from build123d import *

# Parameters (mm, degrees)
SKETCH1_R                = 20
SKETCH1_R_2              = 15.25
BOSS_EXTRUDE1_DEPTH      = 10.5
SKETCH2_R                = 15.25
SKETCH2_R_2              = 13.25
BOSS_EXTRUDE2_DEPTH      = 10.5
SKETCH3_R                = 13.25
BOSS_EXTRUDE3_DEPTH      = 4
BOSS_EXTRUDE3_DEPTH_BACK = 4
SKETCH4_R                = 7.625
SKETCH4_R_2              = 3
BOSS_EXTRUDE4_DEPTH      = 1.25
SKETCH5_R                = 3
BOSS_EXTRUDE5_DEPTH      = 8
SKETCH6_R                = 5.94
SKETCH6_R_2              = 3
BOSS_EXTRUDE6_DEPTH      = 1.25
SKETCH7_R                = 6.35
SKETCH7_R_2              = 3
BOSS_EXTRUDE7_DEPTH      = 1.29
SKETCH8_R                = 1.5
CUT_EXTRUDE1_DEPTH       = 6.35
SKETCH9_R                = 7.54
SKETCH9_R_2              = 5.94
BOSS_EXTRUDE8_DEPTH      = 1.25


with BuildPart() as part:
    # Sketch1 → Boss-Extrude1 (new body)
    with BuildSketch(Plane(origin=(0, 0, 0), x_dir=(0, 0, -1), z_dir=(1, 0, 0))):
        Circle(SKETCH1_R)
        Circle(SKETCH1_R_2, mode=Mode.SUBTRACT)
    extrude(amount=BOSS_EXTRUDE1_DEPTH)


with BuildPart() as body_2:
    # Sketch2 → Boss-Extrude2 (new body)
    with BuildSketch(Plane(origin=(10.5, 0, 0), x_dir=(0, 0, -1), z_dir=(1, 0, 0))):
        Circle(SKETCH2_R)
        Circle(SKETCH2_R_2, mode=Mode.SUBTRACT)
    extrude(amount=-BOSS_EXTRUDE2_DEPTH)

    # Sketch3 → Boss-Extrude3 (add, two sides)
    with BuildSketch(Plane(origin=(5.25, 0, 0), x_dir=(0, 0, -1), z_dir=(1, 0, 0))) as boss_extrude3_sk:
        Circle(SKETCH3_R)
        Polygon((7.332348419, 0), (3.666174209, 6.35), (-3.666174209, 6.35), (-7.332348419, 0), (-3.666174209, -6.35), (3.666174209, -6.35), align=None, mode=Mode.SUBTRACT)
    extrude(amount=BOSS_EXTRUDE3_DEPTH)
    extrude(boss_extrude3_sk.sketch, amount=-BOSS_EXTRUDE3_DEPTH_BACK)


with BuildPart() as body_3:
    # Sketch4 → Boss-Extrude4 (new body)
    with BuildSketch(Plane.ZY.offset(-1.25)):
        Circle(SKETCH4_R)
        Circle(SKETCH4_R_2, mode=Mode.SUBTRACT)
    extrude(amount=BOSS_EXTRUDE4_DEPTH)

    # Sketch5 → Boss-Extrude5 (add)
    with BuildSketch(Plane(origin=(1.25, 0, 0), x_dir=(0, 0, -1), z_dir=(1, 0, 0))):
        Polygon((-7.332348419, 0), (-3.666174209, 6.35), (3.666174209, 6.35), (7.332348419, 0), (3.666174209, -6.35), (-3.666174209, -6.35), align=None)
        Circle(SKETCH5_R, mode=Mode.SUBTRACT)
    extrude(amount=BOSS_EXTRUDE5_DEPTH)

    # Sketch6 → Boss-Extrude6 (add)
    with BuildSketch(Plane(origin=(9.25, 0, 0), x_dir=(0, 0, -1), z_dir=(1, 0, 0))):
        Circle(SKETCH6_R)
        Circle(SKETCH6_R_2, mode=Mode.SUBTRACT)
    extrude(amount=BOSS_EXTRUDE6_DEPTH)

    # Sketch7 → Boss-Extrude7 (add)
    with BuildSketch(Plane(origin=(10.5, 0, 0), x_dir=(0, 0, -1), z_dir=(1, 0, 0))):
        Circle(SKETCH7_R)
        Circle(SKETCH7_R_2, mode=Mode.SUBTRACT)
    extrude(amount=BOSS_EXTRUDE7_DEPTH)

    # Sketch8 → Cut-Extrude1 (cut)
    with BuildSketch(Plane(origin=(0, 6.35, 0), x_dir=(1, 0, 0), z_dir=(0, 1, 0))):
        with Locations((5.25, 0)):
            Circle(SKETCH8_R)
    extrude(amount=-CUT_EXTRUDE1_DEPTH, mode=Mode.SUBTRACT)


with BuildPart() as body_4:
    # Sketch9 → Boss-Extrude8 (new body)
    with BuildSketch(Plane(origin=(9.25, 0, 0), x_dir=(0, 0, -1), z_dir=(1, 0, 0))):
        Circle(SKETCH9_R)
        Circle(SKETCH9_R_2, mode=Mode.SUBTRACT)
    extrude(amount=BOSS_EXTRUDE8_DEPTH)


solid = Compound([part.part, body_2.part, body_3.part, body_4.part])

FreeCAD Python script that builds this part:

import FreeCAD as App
import Part
import Sketcher
Q = App.Units.Quantity

doc = App.newDocument("Part")
params = doc.addObject("Spreadsheet::Sheet", "Params")
for row, (alias, value) in enumerate([
    ("sketch1_diameter", "40 mm"),
    ("sketch1_diameter2", "30.5 mm"),
    ("pad1_length", "10.5 mm"),
    ("sketch2_diameter", "30.5 mm"),
    ("sketch2_diameter2", "26.5 mm"),
    ("pad2_length", "10.5 mm"),
    ("sketch3_diameter", "26.5 mm"),
    ("pad3_length", "4 mm"),
    ("pad3_length2", "4 mm"),
    ("sketch4_diameter", "6 mm"),
    ("sketch4_diameter2", "15.25 mm"),
    ("pad4_length", "1.25 mm"),
    ("sketch5_diameter", "6 mm"),
    ("pad5_length", "8 mm"),
    ("sketch6_diameter", "6 mm"),
    ("sketch6_diameter2", "11.88 mm"),
    ("pad6_length", "1.25 mm"),
    ("sketch7_diameter", "6 mm"),
    ("sketch7_diameter2", "12.7 mm"),
    ("pad7_length", "1.29 mm"),
    ("sketch8_diameter", "3 mm"),
    ("pocket1_length", "6.35 mm"),
    ("sketch9_diameter", "15.08 mm"),
    ("sketch9_diameter2", "11.88 mm"),
    ("pad8_length", "1.25 mm"),
], start=1):
    params.set(f"A{row}", alias)
    params.set(f"B{row}", "=" + value)
    params.setAlias(f"B{row}", alias)

body = doc.addObject("PartDesign::Body", "Body")

# Sketch on YZ plane
sketch1 = doc.addObject("Sketcher::SketchObject", "Sketch")
body.addObject(sketch1)
sketch1.AttachmentSupport = (doc.YZ_Plane, [""])
sketch1.MapMode = "FlatFace"
sketch1.addGeometry(Part.Circle(App.Vector(0, 0, 0), App.Vector(0, 0, 1), 20), False)
sketch1.addGeometry(Part.Circle(App.Vector(0, 0, 0), App.Vector(0, 0, 1), 15.25), False)
sketch1.addConstraint(Sketcher.Constraint("Coincident", 0, 3, -1, 1))
sketch1.addConstraint(Sketcher.Constraint("Coincident", 1, 3, -1, 1))
sketch1.addConstraint(Sketcher.Constraint("Diameter", 0, 40.0))
sketch1.addConstraint(Sketcher.Constraint("Diameter", 1, 30.5))
sketch1.setExpression("Constraints[2]", "Params.sketch1_diameter")
sketch1.setExpression("Constraints[3]", "Params.sketch1_diameter2")
pad1 = doc.addObject("PartDesign::Pad", "Pad")
body.addObject(pad1)
pad1.Profile = sketch1
pad1.setExpression("Length", "Params.pad1_length")
body2 = doc.addObject("PartDesign::Body", "Body001")

# Sketch on YZ plane
sketch2 = doc.addObject("Sketcher::SketchObject", "Sketch001")
body2.addObject(sketch2)
sketch2.AttachmentSupport = (doc.getObject("YZ_Plane001"), [""])
sketch2.MapMode = "FlatFace"
sketch2.AttachmentOffset = App.Placement(App.Vector(0, 0, 10.5), App.Rotation())
sketch2.addGeometry(Part.Circle(App.Vector(0, 0, 0), App.Vector(0, 0, 1), 15.25), False)
sketch2.addGeometry(Part.Circle(App.Vector(0, 0, 0), App.Vector(0, 0, 1), 13.25), False)
sketch2.addConstraint(Sketcher.Constraint("Coincident", 0, 3, -1, 1))
sketch2.addConstraint(Sketcher.Constraint("Coincident", 1, 3, -1, 1))
sketch2.addConstraint(Sketcher.Constraint("Diameter", 0, 30.5))
sketch2.addConstraint(Sketcher.Constraint("Diameter", 1, 26.5))
sketch2.setExpression("Constraints[2]", "Params.sketch2_diameter")
sketch2.setExpression("Constraints[3]", "Params.sketch2_diameter2")
pad2 = doc.addObject("PartDesign::Pad", "Pad001")
body2.addObject(pad2)
pad2.Profile = sketch2
pad2.setExpression("Length", "Params.pad2_length")
pad2.Reversed = True

# Sketch on YZ plane
sketch3 = doc.addObject("Sketcher::SketchObject", "Sketch002")
body2.addObject(sketch3)
sketch3.AttachmentSupport = (doc.getObject("YZ_Plane001"), [""])
sketch3.MapMode = "FlatFace"
sketch3.AttachmentOffset = App.Placement(App.Vector(0, 0, 5.25), App.Rotation())
sketch3.addGeometry(Part.Circle(App.Vector(0, 0, 0), App.Vector(0, 0, 1), 13.25), False)
sketch3.addGeometry(Part.LineSegment(App.Vector(6.35, -3.666174, 0), App.Vector(0, -7.332348, 0)), False)
sketch3.addGeometry(Part.LineSegment(App.Vector(0, -7.332348, 0), App.Vector(-6.35, -3.666174, 0)), False)
sketch3.addGeometry(Part.LineSegment(App.Vector(-6.35, -3.666174, 0), App.Vector(-6.35, 3.666174, 0)), False)
sketch3.addGeometry(Part.LineSegment(App.Vector(-6.35, 3.666174, 0), App.Vector(0, 7.332348, 0)), False)
sketch3.addGeometry(Part.LineSegment(App.Vector(0, 7.332348, 0), App.Vector(6.35, 3.666174, 0)), False)
sketch3.addGeometry(Part.LineSegment(App.Vector(6.35, 3.666174, 0), App.Vector(6.35, -3.666174, 0)), False)
sketch3.addConstraint(Sketcher.Constraint("Coincident", 1, 2, 2, 1))
sketch3.addConstraint(Sketcher.Constraint("Coincident", 2, 2, 3, 1))
sketch3.addConstraint(Sketcher.Constraint("Coincident", 3, 2, 4, 1))
sketch3.addConstraint(Sketcher.Constraint("Coincident", 4, 2, 5, 1))
sketch3.addConstraint(Sketcher.Constraint("Coincident", 5, 2, 6, 1))
sketch3.addConstraint(Sketcher.Constraint("Coincident", 6, 2, 1, 1))
sketch3.addConstraint(Sketcher.Constraint("Vertical", 3))
sketch3.addConstraint(Sketcher.Constraint("Vertical", 6))
sketch3.addConstraint(Sketcher.Constraint("Coincident", 0, 3, -1, 1))
sketch3.addConstraint(Sketcher.Constraint("Symmetric", 1, 2, 4, 2, -1, 1))
sketch3.addConstraint(Sketcher.Constraint("Symmetric", 2, 2, 5, 2, -1, 1))
sketch3.addConstraint(Sketcher.Constraint("PointOnObject", 1, 2, -2))
sketch3.addConstraint(Sketcher.Constraint("Parallel", 1, 4))
sketch3.addConstraint(Sketcher.Constraint("Horizontal", 3, 2, 5, 2))
sketch3.addConstraint(Sketcher.Constraint("Diameter", 0, 26.5))
sketch3.addConstraint(Sketcher.Constraint("Angle", 1, Q("-150 deg")))
sketch3.addConstraint(Sketcher.Constraint("DistanceX", 3, 2, 5, 2, 12.7))
sketch3.addConstraint(Sketcher.Constraint("DistanceY", 3, 1, 3, 2, 7.332348))
sketch3.setExpression("Constraints[14]", "Params.sketch3_diameter")
pad3 = doc.addObject("PartDesign::Pad", "Pad002")
body2.addObject(pad3)
pad3.Profile = sketch3
pad3.Type = "TwoLengths"
pad3.setExpression("Length", "Params.pad3_length")
pad3.setExpression("Length2", "Params.pad3_length2")
body3 = doc.addObject("PartDesign::Body", "Body002")

# Sketch on YZ plane
sketch4 = doc.addObject("Sketcher::SketchObject", "Sketch003")
body3.addObject(sketch4)
sketch4.AttachmentSupport = (doc.getObject("YZ_Plane002"), [""])
sketch4.MapMode = "FlatFace"
sketch4.AttachmentOffset = App.Placement(App.Vector(0, 0, 1.25), App.Rotation())
sketch4.addGeometry(Part.Circle(App.Vector(0, 0, 0), App.Vector(0, 0, 1), 7.625), False)
sketch4.addGeometry(Part.Circle(App.Vector(0, 0, 0), App.Vector(0, 0, 1), 3), False)
sketch4.addConstraint(Sketcher.Constraint("Coincident", 0, 3, -1, 1))
sketch4.addConstraint(Sketcher.Constraint("Coincident", 1, 3, -1, 1))
sketch4.addConstraint(Sketcher.Constraint("Diameter", 1, 6.0))
sketch4.addConstraint(Sketcher.Constraint("Diameter", 0, 15.25))
sketch4.setExpression("Constraints[2]", "Params.sketch4_diameter")
sketch4.setExpression("Constraints[3]", "Params.sketch4_diameter2")
pad4 = doc.addObject("PartDesign::Pad", "Pad003")
body3.addObject(pad4)
pad4.Profile = sketch4
pad4.setExpression("Length", "Params.pad4_length")
pad4.Reversed = True

# Sketch on YZ plane
sketch5 = doc.addObject("Sketcher::SketchObject", "Sketch004")
body3.addObject(sketch5)
sketch5.AttachmentSupport = (doc.getObject("YZ_Plane002"), [""])
sketch5.MapMode = "FlatFace"
sketch5.AttachmentOffset = App.Placement(App.Vector(0, 0, 1.25), App.Rotation())
sketch5.addGeometry(Part.LineSegment(App.Vector(6.35, 3.666174, 0), App.Vector(0, 7.332348, 0)), False)
sketch5.addGeometry(Part.LineSegment(App.Vector(0, 7.332348, 0), App.Vector(-6.35, 3.666174, 0)), False)
sketch5.addGeometry(Part.LineSegment(App.Vector(-6.35, 3.666174, 0), App.Vector(-6.35, -3.666174, 0)), False)
sketch5.addGeometry(Part.LineSegment(App.Vector(-6.35, -3.666174, 0), App.Vector(0, -7.332348, 0)), False)
sketch5.addGeometry(Part.LineSegment(App.Vector(0, -7.332348, 0), App.Vector(6.35, -3.666174, 0)), False)
sketch5.addGeometry(Part.LineSegment(App.Vector(6.35, -3.666174, 0), App.Vector(6.35, 3.666174, 0)), False)
sketch5.addGeometry(Part.Circle(App.Vector(0, 0, 0), App.Vector(0, 0, 1), 3), False)
sketch5.addConstraint(Sketcher.Constraint("Coincident", 0, 2, 1, 1))
sketch5.addConstraint(Sketcher.Constraint("Coincident", 1, 2, 2, 1))
sketch5.addConstraint(Sketcher.Constraint("Coincident", 2, 2, 3, 1))
sketch5.addConstraint(Sketcher.Constraint("Coincident", 3, 2, 4, 1))
sketch5.addConstraint(Sketcher.Constraint("Coincident", 4, 2, 5, 1))
sketch5.addConstraint(Sketcher.Constraint("Coincident", 5, 2, 0, 1))
sketch5.addConstraint(Sketcher.Constraint("Vertical", 2))
sketch5.addConstraint(Sketcher.Constraint("Vertical", 5))
sketch5.addConstraint(Sketcher.Constraint("Coincident", 6, 3, -1, 1))
sketch5.addConstraint(Sketcher.Constraint("Symmetric", 0, 2, 3, 2, -1, 1))
sketch5.addConstraint(Sketcher.Constraint("Symmetric", 1, 2, 4, 2, -1, 1))
sketch5.addConstraint(Sketcher.Constraint("PointOnObject", 0, 2, -2))
sketch5.addConstraint(Sketcher.Constraint("Parallel", 0, 3))
sketch5.addConstraint(Sketcher.Constraint("Horizontal", 2, 2, 4, 2))
sketch5.addConstraint(Sketcher.Constraint("Diameter", 6, 6.0))
sketch5.addConstraint(Sketcher.Constraint("Angle", 0, Q("150 deg")))
sketch5.addConstraint(Sketcher.Constraint("DistanceX", 2, 2, 4, 2, 12.7))
sketch5.addConstraint(Sketcher.Constraint("DistanceY", 2, 2, 2, 1, 7.332348))
sketch5.setExpression("Constraints[14]", "Params.sketch5_diameter")
pad5 = doc.addObject("PartDesign::Pad", "Pad004")
body3.addObject(pad5)
pad5.Profile = sketch5
pad5.setExpression("Length", "Params.pad5_length")

# Sketch on YZ plane
sketch6 = doc.addObject("Sketcher::SketchObject", "Sketch005")
body3.addObject(sketch6)
sketch6.AttachmentSupport = (doc.getObject("YZ_Plane002"), [""])
sketch6.MapMode = "FlatFace"
sketch6.AttachmentOffset = App.Placement(App.Vector(0, 0, 9.25), App.Rotation())
sketch6.addGeometry(Part.Circle(App.Vector(0, 0, 0), App.Vector(0, 0, 1), 5.94), False)
sketch6.addGeometry(Part.Circle(App.Vector(0, 0, 0), App.Vector(0, 0, 1), 3), False)
sketch6.addConstraint(Sketcher.Constraint("Coincident", 0, 3, -1, 1))
sketch6.addConstraint(Sketcher.Constraint("Coincident", 1, 3, -1, 1))
sketch6.addConstraint(Sketcher.Constraint("Diameter", 1, 6.0))
sketch6.addConstraint(Sketcher.Constraint("Diameter", 0, 11.88))
sketch6.setExpression("Constraints[2]", "Params.sketch6_diameter")
sketch6.setExpression("Constraints[3]", "Params.sketch6_diameter2")
pad6 = doc.addObject("PartDesign::Pad", "Pad005")
body3.addObject(pad6)
pad6.Profile = sketch6
pad6.setExpression("Length", "Params.pad6_length")

# Sketch on YZ plane
sketch7 = doc.addObject("Sketcher::SketchObject", "Sketch006")
body3.addObject(sketch7)
sketch7.AttachmentSupport = (doc.getObject("YZ_Plane002"), [""])
sketch7.MapMode = "FlatFace"
sketch7.AttachmentOffset = App.Placement(App.Vector(0, 0, 10.5), App.Rotation())
sketch7.addGeometry(Part.Circle(App.Vector(0, 0, 0), App.Vector(0, 0, 1), 6.35), False)
sketch7.addGeometry(Part.Circle(App.Vector(0, 0, 0), App.Vector(0, 0, 1), 3), False)
sketch7.addConstraint(Sketcher.Constraint("Coincident", 0, 3, -1, 1))
sketch7.addConstraint(Sketcher.Constraint("Coincident", 1, 3, -1, 1))
sketch7.addConstraint(Sketcher.Constraint("Diameter", 1, 6.0))
sketch7.addConstraint(Sketcher.Constraint("Diameter", 0, 12.7))
sketch7.setExpression("Constraints[2]", "Params.sketch7_diameter")
sketch7.setExpression("Constraints[3]", "Params.sketch7_diameter2")
pad7 = doc.addObject("PartDesign::Pad", "Pad006")
body3.addObject(pad7)
pad7.Profile = sketch7
pad7.setExpression("Length", "Params.pad7_length")

# Sketch on XZ plane
sketch8 = doc.addObject("Sketcher::SketchObject", "Sketch007")
body3.addObject(sketch8)
sketch8.AttachmentSupport = (doc.getObject("XZ_Plane002"), [""])
sketch8.MapMode = "FlatFace"
sketch8.AttachmentOffset = App.Placement(App.Vector(0, 0, -6.35), App.Rotation())
sketch8.addGeometry(Part.Circle(App.Vector(5.25, 0, 0), App.Vector(0, 0, 1), 1.5), False)
sketch8.addConstraint(Sketcher.Constraint("PointOnObject", 0, 3, -1))
sketch8.addConstraint(Sketcher.Constraint("Diameter", 0, 3.0))
sketch8.addConstraint(Sketcher.Constraint("DistanceX", -1, 1, 0, 3, 5.25))
sketch8.setExpression("Constraints[1]", "Params.sketch8_diameter")
pocket1 = doc.addObject("PartDesign::Pocket", "Pocket")
body3.addObject(pocket1)
pocket1.Profile = sketch8
pocket1.setExpression("Length", "Params.pocket1_length")
pocket1.Reversed = True
body4 = doc.addObject("PartDesign::Body", "Body003")

# Sketch on YZ plane
sketch9 = doc.addObject("Sketcher::SketchObject", "Sketch008")
body4.addObject(sketch9)
sketch9.AttachmentSupport = (doc.getObject("YZ_Plane003"), [""])
sketch9.MapMode = "FlatFace"
sketch9.AttachmentOffset = App.Placement(App.Vector(0, 0, 9.25), App.Rotation())
sketch9.addGeometry(Part.Circle(App.Vector(0, 0, 0), App.Vector(0, 0, 1), 7.54), False)
sketch9.addGeometry(Part.Circle(App.Vector(0, 0, 0), App.Vector(0, 0, 1), 5.94), False)
sketch9.addConstraint(Sketcher.Constraint("Coincident", 0, 3, -1, 1))
sketch9.addConstraint(Sketcher.Constraint("Coincident", 1, 3, -1, 1))
sketch9.addConstraint(Sketcher.Constraint("Diameter", 0, 15.08))
sketch9.addConstraint(Sketcher.Constraint("Diameter", 1, 11.88))
sketch9.setExpression("Constraints[2]", "Params.sketch9_diameter")
sketch9.setExpression("Constraints[3]", "Params.sketch9_diameter2")
pad8 = doc.addObject("PartDesign::Pad", "Pad007")
body4.addObject(pad8)
pad8.Profile = sketch9
pad8.setExpression("Length", "Params.pad8_length")

doc.recompute()
